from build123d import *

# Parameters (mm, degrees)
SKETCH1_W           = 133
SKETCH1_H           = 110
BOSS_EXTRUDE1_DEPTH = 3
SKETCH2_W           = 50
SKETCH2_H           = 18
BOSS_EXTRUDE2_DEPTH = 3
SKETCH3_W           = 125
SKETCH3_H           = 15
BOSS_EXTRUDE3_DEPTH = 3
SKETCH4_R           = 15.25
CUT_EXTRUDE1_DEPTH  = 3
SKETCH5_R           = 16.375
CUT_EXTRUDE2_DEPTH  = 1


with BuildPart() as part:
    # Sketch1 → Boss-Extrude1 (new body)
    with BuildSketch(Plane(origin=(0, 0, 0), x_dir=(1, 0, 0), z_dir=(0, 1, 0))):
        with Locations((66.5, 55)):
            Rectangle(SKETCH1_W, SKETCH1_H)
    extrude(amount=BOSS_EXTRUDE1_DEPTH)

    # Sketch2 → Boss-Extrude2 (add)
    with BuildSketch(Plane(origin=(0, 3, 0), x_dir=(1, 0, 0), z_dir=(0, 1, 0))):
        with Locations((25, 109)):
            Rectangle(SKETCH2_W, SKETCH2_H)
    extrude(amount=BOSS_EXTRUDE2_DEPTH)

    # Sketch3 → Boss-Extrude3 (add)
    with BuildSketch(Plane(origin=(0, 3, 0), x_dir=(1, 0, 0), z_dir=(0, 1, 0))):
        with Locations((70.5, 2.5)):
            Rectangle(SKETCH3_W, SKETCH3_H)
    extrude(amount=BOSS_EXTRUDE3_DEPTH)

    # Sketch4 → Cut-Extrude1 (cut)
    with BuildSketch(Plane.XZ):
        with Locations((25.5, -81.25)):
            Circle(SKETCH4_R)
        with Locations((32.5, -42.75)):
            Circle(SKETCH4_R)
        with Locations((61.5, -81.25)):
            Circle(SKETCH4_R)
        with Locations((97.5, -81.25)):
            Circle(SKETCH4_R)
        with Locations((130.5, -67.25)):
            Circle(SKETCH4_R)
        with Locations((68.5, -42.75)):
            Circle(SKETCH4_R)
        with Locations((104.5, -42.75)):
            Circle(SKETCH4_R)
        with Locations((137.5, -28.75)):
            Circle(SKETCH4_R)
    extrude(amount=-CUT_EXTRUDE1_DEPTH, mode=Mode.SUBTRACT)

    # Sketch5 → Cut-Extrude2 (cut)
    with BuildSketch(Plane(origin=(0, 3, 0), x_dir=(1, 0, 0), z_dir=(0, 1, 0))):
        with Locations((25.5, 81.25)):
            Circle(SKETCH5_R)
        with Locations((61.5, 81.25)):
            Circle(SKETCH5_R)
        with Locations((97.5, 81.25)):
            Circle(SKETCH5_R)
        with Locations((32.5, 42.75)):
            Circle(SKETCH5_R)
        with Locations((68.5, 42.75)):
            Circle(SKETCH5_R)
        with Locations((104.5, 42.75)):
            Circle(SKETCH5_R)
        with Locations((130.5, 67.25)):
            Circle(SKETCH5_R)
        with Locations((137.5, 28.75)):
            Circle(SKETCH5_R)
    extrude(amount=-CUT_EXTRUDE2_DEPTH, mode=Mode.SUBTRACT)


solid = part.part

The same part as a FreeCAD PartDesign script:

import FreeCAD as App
import Part
import Sketcher
Q = App.Units.Quantity


def add_polygon(sketch, points):
    """Adds a closed chain of lines whose ends are joined by coincident constraints."""
    first, n = sketch.GeometryCount, len(points)
    for a, b in zip(points, points[1:] + points[:1]):
        sketch.addGeometry(Part.LineSegment(App.Vector(*a, 0), App.Vector(*b, 0)), False)
    for i in range(n):
        sketch.addConstraint(Sketcher.Constraint("Coincident", first + i, 2, first + (i + 1) % n, 1))

doc = App.newDocument("Part")
body = doc.addObject("PartDesign::Body", "Body")

sketch1 = body.newObject("Sketcher::SketchObject", "Sketch")
sketch1.AttachmentSupport = (doc.getObject("XZ_Plane"), [""])
sketch1.MapMode = "FlatFace"
add_polygon(sketch1, [(0, -110), (0, 0), (133, 0), (133, -110)])
sketch1.addConstraint([
    Sketcher.Constraint("Vertical", 0),
    Sketcher.Constraint("Horizontal", 1),
    Sketcher.Constraint("Vertical", 2),
    Sketcher.Constraint("Horizontal", 3),
    Sketcher.Constraint("Coincident", 0, 2, -1, 1),
    Sketcher.Constraint("DistanceX", 1, 1, 1, 2, Q("133 mm")),
    Sketcher.Constraint("DistanceY", 0, 1, 0, 2, Q("110 mm")),
])
pad1 = body.newObject("PartDesign::Pad", "Pad")
pad1.Profile = sketch1
pad1.Length = 3
pad1.Reversed = True

sketch2 = body.newObject("Sketcher::SketchObject", "Sketch001")
sketch2.AttachmentSupport = (doc.getObject("XZ_Plane"), [""])
sketch2.MapMode = "FlatFace"
sketch2.AttachmentOffset = App.Placement(App.Vector(0, 0, -3), App.Rotation())
add_polygon(sketch2, [(0, -118), (0, -100), (50, -100), (50, -118)])
sketch2.addConstraint([
    Sketcher.Constraint("Vertical", 0),
    Sketcher.Constraint("Horizontal", 1),
    Sketcher.Constraint("Vertical", 2),
    Sketcher.Constraint("Horizontal", 3),
    Sketcher.Constraint("PointOnObject", 0, 2, -2),
    Sketcher.Constraint("DistanceX", 1, 1, 1, 2, Q("50 mm")),
    Sketcher.Constraint("DistanceY", 0, 1, 0, 2, Q("18 mm")),
    Sketcher.Constraint("DistanceY", 0, 2, -1, 1, Q("100 mm")),
])
pad2 = body.newObject("PartDesign::Pad", "Pad001")
pad2.Profile = sketch2
pad2.Length = 3
pad2.Reversed = True

sketch3 = body.newObject("Sketcher::SketchObject", "Sketch002")
sketch3.AttachmentSupport = (doc.getObject("XZ_Plane"), [""])
sketch3.MapMode = "FlatFace"
sketch3.AttachmentOffset = App.Placement(App.Vector(0, 0, -3), App.Rotation())
add_polygon(sketch3, [(8, -10), (8, 5), (133, 5), (133, -10)])
sketch3.addConstraint([
    Sketcher.Constraint("Vertical", 0),
    Sketcher.Constraint("Horizontal", 1),
    Sketcher.Constraint("Vertical", 2),
    Sketcher.Constraint("Horizontal", 3),
    Sketcher.Constraint("DistanceX", 1, 1, 1, 2, Q("125 mm")),
    Sketcher.Constraint("DistanceY", 0, 1, 0, 2, Q("15 mm")),
    Sketcher.Constraint("DistanceX", -1, 1, 0, 2, Q("8 mm")),
    Sketcher.Constraint("DistanceY", -1, 1, 0, 2, Q("5 mm")),
])
pad3 = body.newObject("PartDesign::Pad", "Pad002")
pad3.Profile = sketch3
pad3.Length = 3
pad3.Reversed = True

sketch4 = body.newObject("Sketcher::SketchObject", "Sketch003")
sketch4.AttachmentSupport = (doc.getObject("XZ_Plane"), [""])
sketch4.MapMode = "FlatFace"
sketch4.addGeometry([
    Part.Circle(App.Vector(26, -81, 0), App.Vector(0, 0, 1), 15),
    Part.Circle(App.Vector(32, -43, 0), App.Vector(0, 0, 1), 15),
    Part.Circle(App.Vector(62, -81, 0), App.Vector(0, 0, 1), 15),
    Part.Circle(App.Vector(98, -81, 0), App.Vector(0, 0, 1), 15),
    Part.Circle(App.Vector(130, -67, 0), App.Vector(0, 0, 1), 15),
    Part.Circle(App.Vector(68, -43, 0), App.Vector(0, 0, 1), 15),
    Part.Circle(App.Vector(104, -43, 0), App.Vector(0, 0, 1), 15),
    Part.Circle(App.Vector(138, -29, 0), App.Vector(0, 0, 1), 15),
], False)
sketch4.addConstraint([
    Sketcher.Constraint("Equal", 0, 1),
    Sketcher.Constraint("Equal", 1, 2),
    Sketcher.Constraint("Equal", 2, 3),
    Sketcher.Constraint("Equal", 3, 4),
    Sketcher.Constraint("Equal", 4, 5),
    Sketcher.Constraint("Equal", 5, 6),
    Sketcher.Constraint("Equal", 6, 7),
    Sketcher.Constraint("Horizontal", 0, 3, 2, 3),
    Sketcher.Constraint("Horizontal", 2, 3, 3, 3),
    Sketcher.Constraint("Horizontal", 1, 3, 5, 3),
    Sketcher.Constraint("Horizontal", 5, 3, 6, 3),
    Sketcher.Constraint("Diameter", 0, Q("30.5 mm")),
    Sketcher.Constraint("DistanceX", 0, 3, 1, 3, Q("7 mm")),
    Sketcher.Constraint("DistanceX", 0, 3, 2, 3, Q("36 mm")),
    Sketcher.Constraint("DistanceX", 2, 3, 3, 3, Q("36 mm")),
    Sketcher.Constraint("DistanceX", 3, 3, 4, 3, Q("33 mm")),
    Sketcher.Constraint("DistanceY", 3, 3, 4, 3, Q("14 mm")),
    Sketcher.Constraint("DistanceX", 1, 3, 5, 3, Q("36 mm")),
    Sketcher.Constraint("DistanceX", 6, 3, 4, 3, Q("26 mm")),
    Sketcher.Constraint("DistanceX", 6, 3, 7, 3, Q("33 mm")),
    Sketcher.Constraint("DistanceY", 6, 3, 7, 3, Q("14 mm")),
    Sketcher.Constraint("DistanceX", -1, 1, 0, 3, Q("25.5 mm")),
    Sketcher.Constraint("DistanceY", 0, 3, 1, 3, Q("38.5 mm")),
    Sketcher.Constraint("DistanceY", 0, 3, -1, 1, Q("81.25 mm")),
])
pocket1 = body.newObject("PartDesign::Pocket", "Pocket")
pocket1.Profile = sketch4
pocket1.Length = 3

sketch5 = body.newObject("Sketcher::SketchObject", "Sketch004")
sketch5.AttachmentSupport = (doc.getObject("XZ_Plane"), [""])
sketch5.MapMode = "FlatFace"
sketch5.AttachmentOffset = App.Placement(App.Vector(0, 0, -3), App.Rotation())
sketch5.addGeometry([
    Part.Circle(App.Vector(26, -81, 0), App.Vector(0, 0, 1), 16),
    Part.Circle(App.Vector(62, -81, 0), App.Vector(0, 0, 1), 16),
    Part.Circle(App.Vector(98, -81, 0), App.Vector(0, 0, 1), 16),
    Part.Circle(App.Vector(32, -43, 0), App.Vector(0, 0, 1), 16),
    Part.Circle(App.Vector(68, -43, 0), App.Vector(0, 0, 1), 16),
    Part.Circle(App.Vector(104, -43, 0), App.Vector(0, 0, 1), 16),
    Part.Circle(App.Vector(130, -67, 0), App.Vector(0, 0, 1), 16),
    Part.Circle(App.Vector(138, -29, 0), App.Vector(0, 0, 1), 16),
], False)
sketch5.addConstraint([
    Sketcher.Constraint("Equal", 0, 1),
    Sketcher.Constraint("Equal", 1, 2),
    Sketcher.Constraint("Equal", 2, 3),
    Sketcher.Constraint("Equal", 3, 4),
    Sketcher.Constraint("Equal", 4, 5),
    Sketcher.Constraint("Equal", 5, 6),
    Sketcher.Constraint("Equal", 6, 7),
    Sketcher.Constraint("Horizontal", 0, 3, 1, 3),
    Sketcher.Constraint("Horizontal", 1, 3, 2, 3),
    Sketcher.Constraint("Horizontal", 3, 3, 4, 3),
    Sketcher.Constraint("Horizontal", 4, 3, 5, 3),
    Sketcher.Constraint("Diameter", 0, Q("32.75 mm")),
    Sketcher.Constraint("DistanceX", 0, 3, 1, 3, Q("36 mm")),
    Sketcher.Constraint("DistanceX", 1, 3, 2, 3, Q("36 mm")),
    Sketcher.Constraint("DistanceX", 0, 3, 3, 3, Q("7 mm")),
    Sketcher.Constraint("DistanceX", 3, 3, 4, 3, Q("36 mm")),
    Sketcher.Constraint("DistanceX", 4, 3, 5, 3, Q("36 mm")),
    Sketcher.Constraint("DistanceX", 5, 3, 6, 3, Q("26 mm")),
    Sketcher.Constraint("DistanceY", 2, 3, 6, 3, Q("14 mm")),
    Sketcher.Constraint("DistanceX", 5, 3, 7, 3, Q("33 mm")),
    Sketcher.Constraint("DistanceY", 5, 3, 7, 3, Q("14 mm")),
    Sketcher.Constraint("DistanceX", -1, 1, 0, 3, Q("25.5 mm")),
    Sketcher.Constraint("DistanceY", 0, 3, 3, 3, Q("38.5 mm")),
    Sketcher.Constraint("DistanceY", 0, 3, -1, 1, Q("81.25 mm")),
])
pocket2 = body.newObject("PartDesign::Pocket", "Pocket001")
pocket2.Profile = sketch5
pocket2.Length = 1
pocket2.Reversed = True

doc.recompute()
